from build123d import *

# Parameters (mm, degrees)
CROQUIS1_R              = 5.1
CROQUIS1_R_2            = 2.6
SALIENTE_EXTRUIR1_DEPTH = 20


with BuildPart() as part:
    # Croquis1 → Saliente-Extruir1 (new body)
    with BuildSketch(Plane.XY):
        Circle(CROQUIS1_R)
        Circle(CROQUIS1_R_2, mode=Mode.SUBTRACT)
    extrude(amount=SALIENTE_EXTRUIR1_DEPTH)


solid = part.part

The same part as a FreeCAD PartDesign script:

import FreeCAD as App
import Part
import Sketcher
from FreeCAD import Vector

doc = App.newDocument("Part")
body = doc.addObject("PartDesign::Body", "Body")

# Sketch on XY plane
sketch1 = doc.addObject("Sketcher::SketchObject", "Sketch")
body.addObject(sketch1)
sketch1.AttachmentSupport = (doc.XY_Plane, [""])
sketch1.MapMode = "FlatFace"
sketch1.addGeometry([
    Part.Circle(Vector(0, 0, 0), Vector(0, 0, 1), 5.1),
    Part.Circle(Vector(0, 0, 0), Vector(0, 0, 1), 2.6),
], False)
sketch1.addConstraint([
    Sketcher.Constraint("Coincident", 0, 3, -1, 1),
    Sketcher.Constraint("Coincident", 1, 3, -1, 1),
    Sketcher.Constraint("Diameter", 0, 10.2),
    Sketcher.Constraint("Diameter", 1, 5.2),
])
pad1 = doc.addObject("PartDesign::Pad", "Pad")
body.addObject(pad1)
pad1.Profile = sketch1
pad1.Length = 20

doc.recompute()
